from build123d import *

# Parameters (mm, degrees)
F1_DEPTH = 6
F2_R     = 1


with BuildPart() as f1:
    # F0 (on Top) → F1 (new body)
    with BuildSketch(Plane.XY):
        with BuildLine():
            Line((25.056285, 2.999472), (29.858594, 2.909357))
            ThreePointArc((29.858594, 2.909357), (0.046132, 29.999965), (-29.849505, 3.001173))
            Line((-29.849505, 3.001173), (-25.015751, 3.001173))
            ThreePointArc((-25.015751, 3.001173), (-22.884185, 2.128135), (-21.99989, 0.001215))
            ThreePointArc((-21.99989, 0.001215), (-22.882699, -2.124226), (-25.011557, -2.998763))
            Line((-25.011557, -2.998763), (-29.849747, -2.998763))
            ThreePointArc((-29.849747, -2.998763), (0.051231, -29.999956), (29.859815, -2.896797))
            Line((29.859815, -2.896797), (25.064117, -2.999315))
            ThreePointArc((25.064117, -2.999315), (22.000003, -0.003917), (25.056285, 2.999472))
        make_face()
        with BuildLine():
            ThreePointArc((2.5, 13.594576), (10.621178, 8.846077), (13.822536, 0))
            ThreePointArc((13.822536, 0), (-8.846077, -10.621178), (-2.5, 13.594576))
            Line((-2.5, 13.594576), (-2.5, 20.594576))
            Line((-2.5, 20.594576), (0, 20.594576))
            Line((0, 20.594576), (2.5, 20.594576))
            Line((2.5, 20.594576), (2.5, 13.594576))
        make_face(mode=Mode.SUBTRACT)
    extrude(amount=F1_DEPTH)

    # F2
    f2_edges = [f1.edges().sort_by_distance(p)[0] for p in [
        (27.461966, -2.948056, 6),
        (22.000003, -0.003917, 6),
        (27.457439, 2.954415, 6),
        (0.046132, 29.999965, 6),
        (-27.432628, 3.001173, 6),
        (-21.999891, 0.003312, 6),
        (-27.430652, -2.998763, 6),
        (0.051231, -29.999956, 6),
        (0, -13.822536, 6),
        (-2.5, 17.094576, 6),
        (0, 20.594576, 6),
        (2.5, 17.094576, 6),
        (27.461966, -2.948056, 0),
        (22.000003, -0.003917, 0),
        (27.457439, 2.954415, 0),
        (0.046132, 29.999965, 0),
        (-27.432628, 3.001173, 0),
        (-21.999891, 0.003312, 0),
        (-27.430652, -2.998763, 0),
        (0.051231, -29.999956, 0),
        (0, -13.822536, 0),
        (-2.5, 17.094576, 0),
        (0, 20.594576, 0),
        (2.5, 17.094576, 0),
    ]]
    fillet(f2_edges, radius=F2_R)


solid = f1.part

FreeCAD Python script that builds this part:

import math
import FreeCAD as App
import Part
import Sketcher

V = App.Vector
Q = App.Units.Quantity


def edges_at(feature, points):
    """Names of the edges that pass closest to the given points."""
    edges = feature.Shape.Edges
    near = lambda p: min(range(len(edges)), key=lambda i: edges[i].distToShape(Part.Vertex(*p))[0])
    return sorted({f"Edge{near(p) + 1}" for p in points})

doc = App.newDocument("Part")
params = doc.addObject("Spreadsheet::Sheet", "Params")
for row, (alias, value) in enumerate([
    ("sketch1_radius", "30 mm"),
    ("sketch1_radius2", "3.000001 mm"),
    ("sketch1_radius3", "30 mm"),
    ("sketch1_radius4", "3 mm"),
    ("sketch1_width", "5 mm"),
    ("pad1_length", "6 mm"),
    ("fillet_radius", "1 mm"),
], start=1):
    params.set(f"A{row}", alias)
    params.set(f"B{row}", "=" + value)
    params.setAlias(f"B{row}", alias)

body = doc.addObject("PartDesign::Body", "Body")

# Sketch on XY plane
sketch1 = body.newObject("Sketcher::SketchObject", "Sketch")
sketch1.AttachmentSupport = (doc.getObject("XY_Plane"), [""])
sketch1.MapMode = "FlatFace"
sketch1.addGeometry([
    Part.LineSegment(V(25.056285, 2.999472, 0), V(29.858594, 2.909357, 0)),  # 0
    Part.ArcOfCircle(Part.Circle(V(0, 0.000001, 0), V(0, 0, 1), 30), math.radians(5.565208), math.radians(174.258579)),  # 1
    Part.LineSegment(V(-29.849505, 3.001173, 0), V(-25.015751, 3.001173, 0)),  # 2
    Part.ArcOfCircle(Part.Circle(V(-24.999891, 0.001214, 0), V(0, 0, 1), 3.000001), math.radians(0.000027), math.radians(90.302898)),  # 3
    Part.ArcOfCircle(Part.Circle(V(-24.999892, 0.001217, 0), V(0, 0, 1), 3.000002), math.radians(-90.22278), math.radians(-0.000031)),  # 4
    Part.LineSegment(V(-25.011557, -2.998763, 0), V(-29.849747, -2.998763, 0)),  # 5
    Part.ArcOfCircle(Part.Circle(V(0, 0, 0), V(0, 0, 1), 30), math.radians(-174.263204), math.radians(-5.541108)),  # 6
    Part.LineSegment(V(29.859815, -2.896797, 0), V(25.064117, -2.999315, 0)),  # 7
    Part.ArcOfCircle(Part.Circle(V(25.000001, 0, 0), V(0, 0, 1), 3), math.radians(88.924984), math.radians(271.224627)),  # 8
    Part.LineSegment(V(2.5, 20.594576, 0), V(2.5, 13.594576, 0)),  # 9
    Part.ArcOfCircle(Part.Circle(V(0, 0, 0), V(0, 0, 1), 13.822536), math.radians(0), math.radians(79.579908)),  # 10
    Part.ArcOfCircle(Part.Circle(V(0, 0, 0), V(0, 0, 1), 13.822536), math.radians(100.420093), math.radians(360)),  # 11
    Part.LineSegment(V(-2.5, 13.594576, 0), V(-2.5, 20.594576, 0)),  # 12
    Part.LineSegment(V(-2.5, 20.594576, 0), V(2.5, 20.594576, 0)),  # 13
], False)
sketch1.addConstraint([
    Sketcher.Constraint("Coincident", 0, 2, 1, 1),
    Sketcher.Constraint("Coincident", 1, 2, 2, 1),
    Sketcher.Constraint("Coincident", 2, 2, 3, 2),
    Sketcher.Constraint("Coincident", 3, 1, 4, 2),
    Sketcher.Constraint("Coincident", 4, 1, 5, 1),
    Sketcher.Constraint("Coincident", 5, 2, 6, 1),
    Sketcher.Constraint("Coincident", 6, 2, 7, 1),
    Sketcher.Constraint("Coincident", 7, 2, 8, 2),
    Sketcher.Constraint("Coincident", 8, 1, 0, 1),
    Sketcher.Constraint("Coincident", 9, 2, 10, 2),
    Sketcher.Constraint("Coincident", 10, 1, 11, 2),
    Sketcher.Constraint("Coincident", 11, 1, 12, 1),
    Sketcher.Constraint("Coincident", 12, 2, 13, 1),
    Sketcher.Constraint("Coincident", 13, 2, 9, 1),
    Sketcher.Constraint("Horizontal", 2),
    Sketcher.Constraint("Horizontal", 5),
    Sketcher.Constraint("Vertical", 9),
    Sketcher.Constraint("Vertical", 12),
    Sketcher.Constraint("Horizontal", 13),
    Sketcher.Constraint("Coincident", 1, 3, -1, 1),
    Sketcher.Constraint("Coincident", 6, 3, -1, 1),
    Sketcher.Constraint("Coincident", 10, 3, -1, 1),
    Sketcher.Constraint("Coincident", 11, 3, -1, 1),
    Sketcher.Constraint("Coincident", 4, 3, 3, 3),
    Sketcher.Constraint("PointOnObject", 8, 3, -1),
    Sketcher.Constraint("PointOnObject", 10, 1, -1),
    Sketcher.Constraint("Radius", 1, Q("30 mm")),
    Sketcher.Constraint("Radius", 3, Q("3.000001 mm")),
    Sketcher.Constraint("Radius", 6, Q("30 mm")),
    Sketcher.Constraint("Radius", 8, Q("3 mm")),
    Sketcher.Constraint("DistanceX", 13, 1, 13, 2, Q("5 mm")),
    Sketcher.Constraint("DistanceY", 9, 2, 9, 1, Q("7 mm")),
    Sketcher.Constraint("DistanceY", 12, 1, 12, 2, Q("7 mm")),
    Sketcher.Constraint("DistanceX", -1, 1, 8, 3, Q("25.000001 mm")),
    Sketcher.Constraint("Radius", 10, Q("13.822536 mm")),
    Sketcher.Constraint("DistanceX", 5, 2, 5, 1, Q("4.83819 mm")),
    Sketcher.Constraint("DistanceX", 2, 1, 2, 2, Q("4.833754 mm")),
    Sketcher.Constraint("DistanceX", 3, 3, -1, 1, Q("24.999891 mm")),
    Sketcher.Constraint("DistanceX", 2, 2, -1, 1, Q("25.015751 mm")),
    Sketcher.Constraint("DistanceY", -1, 1, 8, 1, Q("2.999472 mm")),
    Sketcher.Constraint("DistanceY", 3, 1, 1, 2, Q("2.999958 mm")),
    Sketcher.Constraint("DistanceX", 0, 2, 6, 2, Q("0.001221 mm")),
    Sketcher.Constraint("DistanceY", 7, 2, 6, 2, Q("0.102518 mm")),
    Sketcher.Constraint("DistanceX", 10, 1, 7, 2, Q("11.241581 mm")),
])
sketch1.setExpression("Constraints[26]", "Params.sketch1_radius")
sketch1.setExpression("Constraints[27]", "Params.sketch1_radius2")
sketch1.setExpression("Constraints[28]", "Params.sketch1_radius3")
sketch1.setExpression("Constraints[29]", "Params.sketch1_radius4")
sketch1.setExpression("Constraints[30]", "Params.sketch1_width")
pad1 = body.newObject("PartDesign::Pad", "Pad")
pad1.Profile = sketch1
pad1.setExpression("Length", "Params.pad1_length")
doc.recompute()

fillet = body.newObject("PartDesign::Fillet", "Fillet")
fillet.Base = (pad1, edges_at(pad1, [
    (27.462, -2.948, 6),
    (22, -0.004, 6),
    (27.457, 2.954, 6),
    (0.046, 30, 6),
    (-27.433, 3.001, 6),
    (-22.884, 2.128, 6),
    (-27.431, -2.999, 6),
    (0.051, -30, 6),
    (-8.846, -10.621, 6),
    (-2.5, 17.095, 6),
    (0, 20.595, 6),
    (2.5, 17.095, 6),
    (27.462, -2.948, 0),
    (22, -0.004, 0),
    (27.457, 2.954, 0),
    (0.046, 30, 0),
    (-27.433, 3.001, 0),
    (-22.884, 2.128, 0),
    (-27.431, -2.999, 0),
    (0.051, -30, 0),
    (-8.846, -10.621, 0),
    (-2.5, 17.095, 0),
    (0, 20.595, 0),
    (2.5, 17.095, 0),
]))
fillet.setExpression("Radius", "Params.fillet_radius")

doc.recompute()
